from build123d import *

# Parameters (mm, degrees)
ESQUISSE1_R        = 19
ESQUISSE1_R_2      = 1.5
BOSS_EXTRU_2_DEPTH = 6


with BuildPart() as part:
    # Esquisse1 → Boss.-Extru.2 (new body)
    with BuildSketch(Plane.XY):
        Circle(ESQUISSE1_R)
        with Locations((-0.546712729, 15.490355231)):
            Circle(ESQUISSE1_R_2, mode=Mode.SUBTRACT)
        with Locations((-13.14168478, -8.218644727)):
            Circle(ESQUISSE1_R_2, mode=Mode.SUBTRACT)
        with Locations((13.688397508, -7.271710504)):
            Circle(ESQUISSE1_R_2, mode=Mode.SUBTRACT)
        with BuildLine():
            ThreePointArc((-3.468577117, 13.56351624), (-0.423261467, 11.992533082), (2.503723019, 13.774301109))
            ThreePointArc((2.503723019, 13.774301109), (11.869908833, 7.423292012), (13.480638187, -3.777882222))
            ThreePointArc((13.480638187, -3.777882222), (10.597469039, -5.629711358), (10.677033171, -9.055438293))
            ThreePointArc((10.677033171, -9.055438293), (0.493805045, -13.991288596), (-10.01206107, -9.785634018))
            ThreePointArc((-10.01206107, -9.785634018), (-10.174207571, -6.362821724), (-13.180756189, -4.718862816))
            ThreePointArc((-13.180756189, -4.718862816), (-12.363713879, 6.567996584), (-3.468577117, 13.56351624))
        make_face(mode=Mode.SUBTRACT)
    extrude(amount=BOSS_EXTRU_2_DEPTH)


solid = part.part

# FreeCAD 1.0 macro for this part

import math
import FreeCAD as App
import Part
import Sketcher

doc = App.newDocument("Part")
body = doc.addObject("PartDesign::Body", "Body")

# Sketch on XY plane
sketch1 = body.newObject("Sketcher::SketchObject", "Sketch")
sketch1.AttachmentSupport = (doc.getObject("XY_Plane"), [""])
sketch1.MapMode = "FlatFace"
sketch1.addGeometry(Part.Circle(App.Vector(0, 0, 0), App.Vector(0, 0, 1), 19), False)
sketch1.addGeometry(Part.Circle(App.Vector(-13.141685, -8.218645, 0), App.Vector(0, 0, 1), 1.5), False)
sketch1.addGeometry(Part.ArcOfCircle(Part.Circle(App.Vector(0, 0, 0), App.Vector(0, 0, 1), 14), math.radians(104.344734), math.radians(199.697953)), False)
sketch1.addGeometry(Part.ArcOfCircle(Part.Circle(App.Vector(-0.546713, 15.490355, 0), App.Vector(0, 0, 1), 3.5), math.radians(-146.596933), math.radians(-29.360379)), False)
sketch1.addGeometry(Part.ArcOfCircle(Part.Circle(App.Vector(0, 0, 0), App.Vector(0, 0, 1), 14), math.radians(-15.655266), math.radians(79.697953)), False)
sketch1.addGeometry(Part.ArcOfCircle(Part.Circle(App.Vector(13.688398, -7.271711, 0), App.Vector(0, 0, 1), 3.5), math.radians(93.403067), math.radians(210.639621)), False)
sketch1.addGeometry(Part.ArcOfCircle(Part.Circle(App.Vector(0, 0, 0), App.Vector(0, 0, 1), 14), math.radians(-135.655266), math.radians(-40.302047)), False)
sketch1.addGeometry(Part.ArcOfCircle(Part.Circle(App.Vector(-13.141685, -8.218645, 0), App.Vector(0, 0, 1), 3.5), math.radians(-26.596933), math.radians(90.639621)), False)
sketch1.addGeometry(Part.Circle(App.Vector(13.688398, -7.271711, 0), App.Vector(0, 0, 1), 1.5), False)
sketch1.addGeometry(Part.Circle(App.Vector(-0.546713, 15.490355, 0), App.Vector(0, 0, 1), 1.5), False)
sketch1.addConstraint(Sketcher.Constraint("Coincident", 2, 1, 3, 1))
sketch1.addConstraint(Sketcher.Constraint("Coincident", 3, 2, 4, 2))
sketch1.addConstraint(Sketcher.Constraint("Coincident", 4, 1, 5, 1))
sketch1.addConstraint(Sketcher.Constraint("Coincident", 5, 2, 6, 2))
sketch1.addConstraint(Sketcher.Constraint("Coincident", 6, 1, 7, 1))
sketch1.addConstraint(Sketcher.Constraint("Coincident", 7, 2, 2, 2))
sketch1.addConstraint(Sketcher.Constraint("Coincident", 0, 3, -1, 1))
sketch1.addConstraint(Sketcher.Constraint("Coincident", 2, 3, -1, 1))
sketch1.addConstraint(Sketcher.Constraint("Coincident", 4, 3, -1, 1))
sketch1.addConstraint(Sketcher.Constraint("Coincident", 6, 3, -1, 1))
sketch1.addConstraint(Sketcher.Constraint("Coincident", 7, 3, 1, 3))
sketch1.addConstraint(Sketcher.Constraint("Coincident", 8, 3, 5, 3))
sketch1.addConstraint(Sketcher.Constraint("Coincident", 9, 3, 3, 3))
sketch1.addConstraint(Sketcher.Constraint("Equal", 2, 4))
sketch1.addConstraint(Sketcher.Constraint("Equal", 3, 5))
sketch1.addConstraint(Sketcher.Constraint("Equal", 4, 6))
sketch1.addConstraint(Sketcher.Constraint("Equal", 5, 7))
sketch1.addConstraint(Sketcher.Constraint("Equal", 1, 8))
sketch1.addConstraint(Sketcher.Constraint("Equal", 8, 9))
sketch1.addConstraint(Sketcher.Constraint("Diameter", 0, 38.0))
sketch1.addConstraint(Sketcher.Constraint("Diameter", 1, 3.0))
sketch1.addConstraint(Sketcher.Constraint("Radius", 2, 14.0))
sketch1.addConstraint(Sketcher.Constraint("Radius", 3, 3.5))
sketch1.addConstraint(Sketcher.Constraint("DistanceY", 1, 3, 3, 3, 23.709))
sketch1.addConstraint(Sketcher.Constraint("DistanceY", -1, 1, 3, 2, 13.774301))
sketch1.addConstraint(Sketcher.Constraint("DistanceX", 2, 1, 3, 2, 5.9723))
sketch1.addConstraint(Sketcher.Constraint("DistanceY", 5, 3, -1, 1, 7.271711))
sketch1.addConstraint(Sketcher.Constraint("DistanceX", -1, 1, 4, 1, 13.480638))
sketch1.addConstraint(Sketcher.Constraint("DistanceX", 6, 1, -1, 1, 10.012061))
pad1 = body.newObject("PartDesign::Pad", "Pad")
pad1.Profile = sketch1
pad1.Length = 6

doc.recompute()
